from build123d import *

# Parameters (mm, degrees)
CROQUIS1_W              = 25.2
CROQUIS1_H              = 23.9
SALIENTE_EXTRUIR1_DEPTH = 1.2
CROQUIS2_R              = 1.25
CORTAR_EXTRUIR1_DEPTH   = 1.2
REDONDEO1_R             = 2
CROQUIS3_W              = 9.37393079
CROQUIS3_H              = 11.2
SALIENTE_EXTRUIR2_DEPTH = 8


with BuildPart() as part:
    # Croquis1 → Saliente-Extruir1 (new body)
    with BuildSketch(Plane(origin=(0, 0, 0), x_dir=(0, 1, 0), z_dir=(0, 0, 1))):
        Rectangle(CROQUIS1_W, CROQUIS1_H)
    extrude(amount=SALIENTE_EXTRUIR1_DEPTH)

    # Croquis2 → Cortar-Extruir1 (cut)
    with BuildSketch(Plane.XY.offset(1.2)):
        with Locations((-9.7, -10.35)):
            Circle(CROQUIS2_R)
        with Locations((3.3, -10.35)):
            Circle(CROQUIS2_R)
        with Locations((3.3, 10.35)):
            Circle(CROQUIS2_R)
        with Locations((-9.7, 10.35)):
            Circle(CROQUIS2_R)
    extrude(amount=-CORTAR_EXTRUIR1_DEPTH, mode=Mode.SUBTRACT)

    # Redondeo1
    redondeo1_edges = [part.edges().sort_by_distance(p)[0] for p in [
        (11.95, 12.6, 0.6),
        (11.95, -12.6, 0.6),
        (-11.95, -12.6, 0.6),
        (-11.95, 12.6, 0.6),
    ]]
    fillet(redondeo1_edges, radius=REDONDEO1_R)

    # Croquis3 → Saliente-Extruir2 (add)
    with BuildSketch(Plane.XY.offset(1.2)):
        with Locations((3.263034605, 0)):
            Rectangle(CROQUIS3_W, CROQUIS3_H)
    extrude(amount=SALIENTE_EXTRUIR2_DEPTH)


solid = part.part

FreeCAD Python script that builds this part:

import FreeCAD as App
import Part
import Sketcher

V = App.Vector
Q = App.Units.Quantity


def edges_at(feature, points):
    """Names of the edges that pass closest to the given points."""
    edges = feature.Shape.Edges
    near = lambda p: min(range(len(edges)), key=lambda i: edges[i].distToShape(Part.Vertex(*p))[0])
    return sorted({f"Edge{near(p) + 1}" for p in points})


def add_polygon(sketch, points):
    """Adds a closed chain of lines whose ends are joined by coincident constraints."""
    first, n = sketch.GeometryCount, len(points)
    for a, b in zip(points, points[1:] + points[:1]):
        sketch.addGeometry(Part.LineSegment(App.Vector(*a, 0), App.Vector(*b, 0)), False)
    for i in range(n):
        sketch.addConstraint(Sketcher.Constraint("Coincident", first + i, 2, first + (i + 1) % n, 1))

doc = App.newDocument("Part")
body = doc.addObject("PartDesign::Body", "Body")

# Sketch on XY plane
sketch1 = doc.addObject("Sketcher::SketchObject", "Sketch")
body.addObject(sketch1)
sketch1.AttachmentSupport = (doc.XY_Plane, [""])
sketch1.MapMode = "FlatFace"
add_polygon(sketch1, [(-12, -13), (12, -13), (12, 13), (-12, 13)])  # lines 0-3
sketch1.addConstraint(Sketcher.Constraint("Horizontal", 0))
sketch1.addConstraint(Sketcher.Constraint("Vertical", 1))
sketch1.addConstraint(Sketcher.Constraint("Horizontal", 2))
sketch1.addConstraint(Sketcher.Constraint("Vertical", 3))
sketch1.addConstraint(Sketcher.Constraint("Symmetric", 0, 2, 2, 2, -1, 1))
sketch1.addConstraint(Sketcher.Constraint("DistanceX", 0, 1, 0, 2, Q("23.9 mm")))
sketch1.addConstraint(Sketcher.Constraint("DistanceY", 1, 1, 1, 2, Q("25.2 mm")))
pad1 = doc.addObject("PartDesign::Pad", "Pad")
body.addObject(pad1)
pad1.Profile = sketch1
pad1.Length = 1.2

# Sketch on XY plane
sketch2 = doc.addObject("Sketcher::SketchObject", "Sketch001")
body.addObject(sketch2)
sketch2.AttachmentSupport = (doc.XY_Plane, [""])
sketch2.MapMode = "FlatFace"
sketch2.AttachmentOffset = App.Placement(V(0, 0, 1.2), App.Rotation())
sketch2.addGeometry(Part.Circle(V(-9.7, -10.3, 0), V(0, 0, 1), 1.2), False)
sketch2.addGeometry(Part.Circle(V(3.3, -10.3, 0), V(0, 0, 1), 1.2), False)
sketch2.addGeometry(Part.Circle(V(3.3, 10.3, 0), V(0, 0, 1), 1.2), False)
sketch2.addGeometry(Part.Circle(V(-9.7, 10.3, 0), V(0, 0, 1), 1.2), False)
sketch2.addConstraint(Sketcher.Constraint("Equal", 0, 1))
sketch2.addConstraint(Sketcher.Constraint("Equal", 1, 2))
sketch2.addConstraint(Sketcher.Constraint("Equal", 2, 3))
sketch2.addConstraint(Sketcher.Constraint("Symmetric", 1, 3, 2, 3, -1))
sketch2.addConstraint(Sketcher.Constraint("Symmetric", 0, 3, 3, 3, -1))
sketch2.addConstraint(Sketcher.Constraint("Horizontal", 0, 3, 1, 3))
sketch2.addConstraint(Sketcher.Constraint("Diameter", 0, Q("2.5 mm")))
sketch2.addConstraint(Sketcher.Constraint("DistanceX", 0, 3, 1, 3, Q("13 mm")))
sketch2.addConstraint(Sketcher.Constraint("DistanceX", 0, 3, -1, 1, Q("9.7 mm")))
sketch2.addConstraint(Sketcher.Constraint("DistanceY", 1, 3, 2, 3, Q("20.7 mm")))
pocket1 = doc.addObject("PartDesign::Pocket", "Pocket")
body.addObject(pocket1)
pocket1.Profile = sketch2
pocket1.Length = 1.2
doc.recompute()

fillet = doc.addObject("PartDesign::Fillet", "Fillet")
body.addObject(fillet)
fillet.Base = (pocket1, edges_at(pocket1, [
    (11.95, 12.6, 0.6),
    (11.95, -12.6, 0.6),
    (-11.95, -12.6, 0.6),
    (-11.95, 12.6, 0.6),
]))
fillet.Radius = 2

# Sketch on XY plane
sketch3 = doc.addObject("Sketcher::SketchObject", "Sketch002")
body.addObject(sketch3)
sketch3.AttachmentSupport = (doc.XY_Plane, [""])
sketch3.MapMode = "FlatFace"
sketch3.AttachmentOffset = App.Placement(V(0, 0, 1.2), App.Rotation())
add_polygon(sketch3, [(-1, 6), (-1, -6), (8, -6), (8, 6)])  # lines 0-3
sketch3.addConstraint(Sketcher.Constraint("Vertical", 0))
sketch3.addConstraint(Sketcher.Constraint("Horizontal", 1))
sketch3.addConstraint(Sketcher.Constraint("Vertical", 2))
sketch3.addConstraint(Sketcher.Constraint("Horizontal", 3))
sketch3.addConstraint(Sketcher.Constraint("DistanceY", 0, 2, 0, 1, Q("11.2 mm")))
sketch3.addConstraint(Sketcher.Constraint("DistanceY", 0, 2, -1, 1, Q("5.6 mm")))
sketch3.addConstraint(Sketcher.Constraint("DistanceX", -1, 1, 1, 2, Q("7.95 mm")))
sketch3.addConstraint(Sketcher.Constraint("DistanceX", 1, 1, 1, 2, Q("9.373931 mm")))
pad2 = doc.addObject("PartDesign::Pad", "Pad001")
body.addObject(pad2)
pad2.Profile = sketch3
pad2.Length = 8

doc.recompute()
